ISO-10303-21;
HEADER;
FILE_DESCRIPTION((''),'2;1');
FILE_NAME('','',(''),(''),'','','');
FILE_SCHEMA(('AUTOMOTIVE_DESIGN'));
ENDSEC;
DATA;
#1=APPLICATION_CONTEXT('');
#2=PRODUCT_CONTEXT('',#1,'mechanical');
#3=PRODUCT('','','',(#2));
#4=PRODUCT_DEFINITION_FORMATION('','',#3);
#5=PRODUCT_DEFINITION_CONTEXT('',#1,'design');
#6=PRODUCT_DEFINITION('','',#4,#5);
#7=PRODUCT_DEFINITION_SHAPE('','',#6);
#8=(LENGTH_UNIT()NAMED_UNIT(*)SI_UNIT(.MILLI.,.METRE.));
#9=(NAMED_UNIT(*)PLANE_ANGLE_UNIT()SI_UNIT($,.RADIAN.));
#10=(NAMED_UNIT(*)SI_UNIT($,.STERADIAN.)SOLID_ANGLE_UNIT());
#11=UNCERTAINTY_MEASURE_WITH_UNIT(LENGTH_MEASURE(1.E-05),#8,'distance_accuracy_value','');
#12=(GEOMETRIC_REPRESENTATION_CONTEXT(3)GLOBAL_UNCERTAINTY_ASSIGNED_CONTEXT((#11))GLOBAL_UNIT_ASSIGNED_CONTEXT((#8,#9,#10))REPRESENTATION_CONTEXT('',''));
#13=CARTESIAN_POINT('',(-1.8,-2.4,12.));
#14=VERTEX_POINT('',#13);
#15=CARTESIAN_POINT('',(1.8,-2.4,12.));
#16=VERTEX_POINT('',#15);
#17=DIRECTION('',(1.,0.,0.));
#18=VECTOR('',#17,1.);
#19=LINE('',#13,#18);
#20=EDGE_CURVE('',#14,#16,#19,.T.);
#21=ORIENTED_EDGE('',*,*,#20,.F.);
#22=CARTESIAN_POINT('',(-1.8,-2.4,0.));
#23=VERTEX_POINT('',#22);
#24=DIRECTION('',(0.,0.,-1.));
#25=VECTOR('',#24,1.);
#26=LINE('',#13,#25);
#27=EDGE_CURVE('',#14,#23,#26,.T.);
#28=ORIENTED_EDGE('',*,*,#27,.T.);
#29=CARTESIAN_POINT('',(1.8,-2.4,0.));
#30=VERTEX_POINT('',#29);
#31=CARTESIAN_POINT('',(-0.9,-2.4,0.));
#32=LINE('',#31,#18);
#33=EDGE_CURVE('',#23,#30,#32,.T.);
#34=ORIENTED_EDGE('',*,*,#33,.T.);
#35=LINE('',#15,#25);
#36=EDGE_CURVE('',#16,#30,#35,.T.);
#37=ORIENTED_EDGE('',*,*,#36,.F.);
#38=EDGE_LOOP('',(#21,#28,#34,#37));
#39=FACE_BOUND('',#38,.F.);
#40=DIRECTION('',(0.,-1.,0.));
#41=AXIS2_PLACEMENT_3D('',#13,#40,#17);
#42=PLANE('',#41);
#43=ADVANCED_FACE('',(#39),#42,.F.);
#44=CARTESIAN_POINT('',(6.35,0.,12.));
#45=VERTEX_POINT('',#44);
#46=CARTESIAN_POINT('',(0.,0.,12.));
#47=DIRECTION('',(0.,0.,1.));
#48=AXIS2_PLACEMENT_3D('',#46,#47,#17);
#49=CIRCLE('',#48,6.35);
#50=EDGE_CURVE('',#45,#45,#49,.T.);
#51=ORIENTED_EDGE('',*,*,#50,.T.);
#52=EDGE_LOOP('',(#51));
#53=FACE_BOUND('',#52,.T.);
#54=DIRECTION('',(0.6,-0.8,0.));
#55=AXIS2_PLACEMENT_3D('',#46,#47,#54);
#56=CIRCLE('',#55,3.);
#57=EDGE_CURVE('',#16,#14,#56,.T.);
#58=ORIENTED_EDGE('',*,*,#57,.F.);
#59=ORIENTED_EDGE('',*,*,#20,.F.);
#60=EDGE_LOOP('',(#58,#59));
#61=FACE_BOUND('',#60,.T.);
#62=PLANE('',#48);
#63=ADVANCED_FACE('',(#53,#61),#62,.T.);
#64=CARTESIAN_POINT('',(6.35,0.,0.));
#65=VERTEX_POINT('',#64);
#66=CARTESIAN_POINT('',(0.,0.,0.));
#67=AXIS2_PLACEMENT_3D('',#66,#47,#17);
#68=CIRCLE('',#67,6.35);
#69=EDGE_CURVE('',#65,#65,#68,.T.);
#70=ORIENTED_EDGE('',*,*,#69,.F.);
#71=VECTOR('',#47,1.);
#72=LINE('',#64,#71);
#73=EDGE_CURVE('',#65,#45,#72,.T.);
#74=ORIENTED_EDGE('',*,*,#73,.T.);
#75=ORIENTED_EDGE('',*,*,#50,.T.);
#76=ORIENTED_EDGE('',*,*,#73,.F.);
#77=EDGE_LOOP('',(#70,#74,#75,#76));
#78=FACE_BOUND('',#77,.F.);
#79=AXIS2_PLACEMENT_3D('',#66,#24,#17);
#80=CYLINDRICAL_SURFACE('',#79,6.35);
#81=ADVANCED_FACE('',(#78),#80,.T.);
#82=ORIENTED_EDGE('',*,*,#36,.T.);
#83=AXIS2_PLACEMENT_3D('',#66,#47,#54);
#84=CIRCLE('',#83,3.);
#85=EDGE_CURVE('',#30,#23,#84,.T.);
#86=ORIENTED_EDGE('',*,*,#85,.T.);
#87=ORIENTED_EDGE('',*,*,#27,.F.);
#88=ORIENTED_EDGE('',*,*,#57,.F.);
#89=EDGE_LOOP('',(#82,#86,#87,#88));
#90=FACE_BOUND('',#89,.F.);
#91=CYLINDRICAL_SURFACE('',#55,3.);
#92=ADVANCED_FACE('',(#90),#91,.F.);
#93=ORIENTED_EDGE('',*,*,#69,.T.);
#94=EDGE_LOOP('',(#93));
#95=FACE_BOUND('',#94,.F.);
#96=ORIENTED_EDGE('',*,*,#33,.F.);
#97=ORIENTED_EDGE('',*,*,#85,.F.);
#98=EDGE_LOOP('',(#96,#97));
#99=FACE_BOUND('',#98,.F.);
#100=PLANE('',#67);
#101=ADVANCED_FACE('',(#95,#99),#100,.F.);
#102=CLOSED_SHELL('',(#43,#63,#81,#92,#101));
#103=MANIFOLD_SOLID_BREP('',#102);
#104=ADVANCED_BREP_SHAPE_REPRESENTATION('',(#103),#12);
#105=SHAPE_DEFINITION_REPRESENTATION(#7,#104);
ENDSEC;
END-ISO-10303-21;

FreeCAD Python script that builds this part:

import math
import FreeCAD as App
import Part
import Sketcher

V = App.Vector

doc = App.newDocument("Part")
body = doc.addObject("PartDesign::Body", "Body")

sketch1 = doc.addObject("Sketcher::SketchObject", "Sketch")
body.addObject(sketch1)
sketch1.AttachmentSupport = (doc.XY_Plane, [""])
sketch1.MapMode = "FlatFace"
sketch1.addGeometry(Part.Circle(V(0, 0, 0), V(0, 0, 1), 6.35), False)
sketch1.addConstraint([
    Sketcher.Constraint("Coincident", 0, 3, -1, 1),
    Sketcher.Constraint("Diameter", 0, 12.7),
])
pad1 = doc.addObject("PartDesign::Pad", "Pad")
body.addObject(pad1)
pad1.Profile = sketch1
pad1.Length = 12

sketch2 = doc.addObject("Sketcher::SketchObject", "Sketch001")
body.addObject(sketch2)
sketch2.AttachmentSupport = (doc.XY_Plane, [""])
sketch2.MapMode = "FlatFace"
sketch2.AttachmentOffset = App.Placement(V(0, 0, 12), App.Rotation())
sketch2.addGeometry([
    Part.ArcOfCircle(Part.Circle(V(0, 0, 0), V(0, 0, 1), 3), math.radians(-53.130102), math.radians(233.130102)),
    Part.LineSegment(V(-1.8, -2.4, 0), V(1.8, -2.4, 0)),
], False)
sketch2.addConstraint([
    Sketcher.Constraint("Coincident", 0, 1, 1, 2),
    Sketcher.Constraint("Coincident", 1, 1, 0, 2),
    Sketcher.Constraint("Horizontal", 1),
    Sketcher.Constraint("Coincident", 0, 3, -1, 1),
    Sketcher.Constraint("Radius", 0, 3.0),
    Sketcher.Constraint("DistanceX", 1, 1, 1, 2, 3.6),
])
pocket1 = doc.addObject("PartDesign::Pocket", "Pocket")
body.addObject(pocket1)
pocket1.Profile = sketch2
pocket1.Type = "ThroughAll"

doc.recompute()
